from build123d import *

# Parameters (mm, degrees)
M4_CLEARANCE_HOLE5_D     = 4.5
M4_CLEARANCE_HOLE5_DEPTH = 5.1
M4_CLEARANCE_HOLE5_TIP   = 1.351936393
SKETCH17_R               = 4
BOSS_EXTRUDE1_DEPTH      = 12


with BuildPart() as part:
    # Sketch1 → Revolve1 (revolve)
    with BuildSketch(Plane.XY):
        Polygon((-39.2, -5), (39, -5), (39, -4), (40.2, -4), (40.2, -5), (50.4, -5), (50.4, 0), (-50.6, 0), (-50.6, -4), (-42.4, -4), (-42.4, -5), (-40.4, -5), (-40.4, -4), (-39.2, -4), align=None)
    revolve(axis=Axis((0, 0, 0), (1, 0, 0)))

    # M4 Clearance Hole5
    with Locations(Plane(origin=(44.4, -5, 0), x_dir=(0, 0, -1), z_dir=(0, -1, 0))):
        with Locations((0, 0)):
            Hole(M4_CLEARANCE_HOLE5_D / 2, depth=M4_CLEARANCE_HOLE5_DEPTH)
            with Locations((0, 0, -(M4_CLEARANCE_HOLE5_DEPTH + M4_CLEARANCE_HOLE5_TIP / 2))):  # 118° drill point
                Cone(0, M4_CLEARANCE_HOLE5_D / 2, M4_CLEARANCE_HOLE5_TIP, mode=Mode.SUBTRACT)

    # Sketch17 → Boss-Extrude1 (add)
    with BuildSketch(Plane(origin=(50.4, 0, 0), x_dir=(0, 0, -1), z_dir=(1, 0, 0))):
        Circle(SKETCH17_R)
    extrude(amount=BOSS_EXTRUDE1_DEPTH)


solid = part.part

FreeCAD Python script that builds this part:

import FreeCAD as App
import Part
import Sketcher
from FreeCAD import Vector


def add_polygon(sketch, points):
    """Adds a closed chain of lines whose ends are joined by coincident constraints."""
    first, n = sketch.GeometryCount, len(points)
    for a, b in zip(points, points[1:] + points[:1]):
        sketch.addGeometry(Part.LineSegment(App.Vector(*a, 0), App.Vector(*b, 0)), False)
    for i in range(n):
        sketch.addConstraint(Sketcher.Constraint("Coincident", first + i, 2, first + (i + 1) % n, 1))

doc = App.newDocument("Part")
params = doc.addObject("Spreadsheet::Sheet", "Params")
for row, (alias, value) in enumerate([
    ("sketch1_width", "101 mm"),
    ("sketch1_width2", "2 mm"),
    ("sketch1_height", "1 mm"),
    ("sketch1_height2", "5 mm"),
    ("sketch1_width3", "78.2 mm"),
    ("revolution_angle", "360 deg"),
    ("sketch2_diameter", "4.5 mm"),
    ("hole_diameter", "4.5 mm"),
    ("hole_depth", "5.1 mm"),
    ("sketch3_diameter", "8 mm"),
    ("pad1_length", "12 mm"),
], start=1):
    params.set(f"A{row}", alias)
    params.set(f"B{row}", "=" + value)
    params.setAlias(f"B{row}", alias)

body = doc.addObject("PartDesign::Body", "Body")

# Sketch on XY plane
sketch1 = doc.addObject("Sketcher::SketchObject", "Sketch")
body.addObject(sketch1)
sketch1.AttachmentSupport = (doc.XY_Plane, [""])
sketch1.MapMode = "FlatFace"
add_polygon(sketch1, [(-39.2, -5), (39, -5), (39, -4), (40.2, -4), (40.2, -5), (50.4, -5), (50.4, 0), (-50.6, 0), (-50.6, -4), (-42.4, -4), (-42.4, -5), (-40.4, -5), (-40.4, -4), (-39.2, -4)])  # lines 0-13
sketch1.addConstraint([
    Sketcher.Constraint("Horizontal", 0),
    Sketcher.Constraint("Vertical", 1),
    Sketcher.Constraint("Horizontal", 2),
    Sketcher.Constraint("Vertical", 3),
    Sketcher.Constraint("Horizontal", 4),
    Sketcher.Constraint("Vertical", 5),
    Sketcher.Constraint("Horizontal", 6),
    Sketcher.Constraint("Vertical", 7),
    Sketcher.Constraint("Horizontal", 8),
    Sketcher.Constraint("Vertical", 9),
    Sketcher.Constraint("Horizontal", 10),
    Sketcher.Constraint("Vertical", 11),
    Sketcher.Constraint("Horizontal", 12),
    Sketcher.Constraint("Vertical", 13),
    Sketcher.Constraint("PointOnObject", 5, 2, -1),
    Sketcher.Constraint("Horizontal", 0, 2, 3, 2),
    Sketcher.Constraint("Horizontal", 2, 2, 7, 2),
    Sketcher.Constraint("Horizontal", 4, 2, 9, 2),
    Sketcher.Constraint("Horizontal", 8, 2, 11, 2),
    Sketcher.Constraint("Equal", 2, 12),
    Sketcher.Constraint("DistanceX", 6, 2, 6, 1, 101.0),
    Sketcher.Constraint("DistanceX", 10, 1, 10, 2, 2.0),
    Sketcher.Constraint("DistanceY", 1, 1, 1, 2, 1.0),
    Sketcher.Constraint("DistanceY", 5, 1, 5, 2, 5.0),
    Sketcher.Constraint("DistanceX", 0, 1, 0, 2, 78.2),
    Sketcher.Constraint("DistanceX", 2, 1, 2, 2, 1.2),
    Sketcher.Constraint("DistanceX", 4, 1, 4, 2, 10.2),
    Sketcher.Constraint("DistanceX", -1, 1, 0, 2, 39.0),
])
sketch1.setExpression("Constraints[34]", "Params.sketch1_width")
sketch1.setExpression("Constraints[35]", "Params.sketch1_width2")
sketch1.setExpression("Constraints[36]", "Params.sketch1_height")
sketch1.setExpression("Constraints[37]", "Params.sketch1_height2")
sketch1.setExpression("Constraints[38]", "Params.sketch1_width3")
revolution = doc.addObject("PartDesign::Revolution", "Revolution")
body.addObject(revolution)
revolution.Profile = sketch1
revolution.ReferenceAxis = (sketch1, ["H_Axis"])
revolution.setExpression("Angle", "Params.revolution_angle")

# Sketch on XZ plane
sketch2 = doc.addObject("Sketcher::SketchObject", "Sketch001")
body.addObject(sketch2)
sketch2.AttachmentSupport = (doc.XZ_Plane, [""])
sketch2.MapMode = "FlatFace"
sketch2.AttachmentOffset = App.Placement(Vector(0, 0, 5), App.Rotation())
sketch2.addGeometry(Part.Circle(Vector(44.4, 0, 0), Vector(0, 0, 1), 2.2), False)
sketch2.addConstraint([
    Sketcher.Constraint("PointOnObject", 0, 3, -1),
    Sketcher.Constraint("Diameter", 0, 4.5),
    Sketcher.Constraint("DistanceX", -1, 1, 0, 3, 44.4),
])
sketch2.setExpression("Constraints[1]", "Params.sketch2_diameter")
doc.recompute()
hole = doc.addObject("PartDesign::Hole", "Hole")
body.addObject(hole)
hole.Profile = sketch2
hole.ThreadType = "None"
hole.setExpression("Diameter", "Params.hole_diameter")
hole.DepthType = "Dimension"
hole.setExpression("Depth", "Params.hole_depth")
hole.DrillPoint = "Angled"
hole.DrillPointAngle = 118

# Sketch on YZ plane
sketch3 = doc.addObject("Sketcher::SketchObject", "Sketch002")
body.addObject(sketch3)
sketch3.AttachmentSupport = (doc.YZ_Plane, [""])
sketch3.MapMode = "FlatFace"
sketch3.AttachmentOffset = App.Placement(Vector(0, 0, 50.4), App.Rotation())
sketch3.addGeometry(Part.Circle(Vector(0, 0, 0), Vector(0, 0, 1), 4), False)
sketch3.addConstraint([
    Sketcher.Constraint("Coincident", 0, 3, -1, 1),
    Sketcher.Constraint("Diameter", 0, 8.0),
])
sketch3.setExpression("Constraints[1]", "Params.sketch3_diameter")
pad1 = doc.addObject("PartDesign::Pad", "Pad")
body.addObject(pad1)
pad1.Profile = sketch3
pad1.setExpression("Length", "Params.pad1_length")

doc.recompute()
